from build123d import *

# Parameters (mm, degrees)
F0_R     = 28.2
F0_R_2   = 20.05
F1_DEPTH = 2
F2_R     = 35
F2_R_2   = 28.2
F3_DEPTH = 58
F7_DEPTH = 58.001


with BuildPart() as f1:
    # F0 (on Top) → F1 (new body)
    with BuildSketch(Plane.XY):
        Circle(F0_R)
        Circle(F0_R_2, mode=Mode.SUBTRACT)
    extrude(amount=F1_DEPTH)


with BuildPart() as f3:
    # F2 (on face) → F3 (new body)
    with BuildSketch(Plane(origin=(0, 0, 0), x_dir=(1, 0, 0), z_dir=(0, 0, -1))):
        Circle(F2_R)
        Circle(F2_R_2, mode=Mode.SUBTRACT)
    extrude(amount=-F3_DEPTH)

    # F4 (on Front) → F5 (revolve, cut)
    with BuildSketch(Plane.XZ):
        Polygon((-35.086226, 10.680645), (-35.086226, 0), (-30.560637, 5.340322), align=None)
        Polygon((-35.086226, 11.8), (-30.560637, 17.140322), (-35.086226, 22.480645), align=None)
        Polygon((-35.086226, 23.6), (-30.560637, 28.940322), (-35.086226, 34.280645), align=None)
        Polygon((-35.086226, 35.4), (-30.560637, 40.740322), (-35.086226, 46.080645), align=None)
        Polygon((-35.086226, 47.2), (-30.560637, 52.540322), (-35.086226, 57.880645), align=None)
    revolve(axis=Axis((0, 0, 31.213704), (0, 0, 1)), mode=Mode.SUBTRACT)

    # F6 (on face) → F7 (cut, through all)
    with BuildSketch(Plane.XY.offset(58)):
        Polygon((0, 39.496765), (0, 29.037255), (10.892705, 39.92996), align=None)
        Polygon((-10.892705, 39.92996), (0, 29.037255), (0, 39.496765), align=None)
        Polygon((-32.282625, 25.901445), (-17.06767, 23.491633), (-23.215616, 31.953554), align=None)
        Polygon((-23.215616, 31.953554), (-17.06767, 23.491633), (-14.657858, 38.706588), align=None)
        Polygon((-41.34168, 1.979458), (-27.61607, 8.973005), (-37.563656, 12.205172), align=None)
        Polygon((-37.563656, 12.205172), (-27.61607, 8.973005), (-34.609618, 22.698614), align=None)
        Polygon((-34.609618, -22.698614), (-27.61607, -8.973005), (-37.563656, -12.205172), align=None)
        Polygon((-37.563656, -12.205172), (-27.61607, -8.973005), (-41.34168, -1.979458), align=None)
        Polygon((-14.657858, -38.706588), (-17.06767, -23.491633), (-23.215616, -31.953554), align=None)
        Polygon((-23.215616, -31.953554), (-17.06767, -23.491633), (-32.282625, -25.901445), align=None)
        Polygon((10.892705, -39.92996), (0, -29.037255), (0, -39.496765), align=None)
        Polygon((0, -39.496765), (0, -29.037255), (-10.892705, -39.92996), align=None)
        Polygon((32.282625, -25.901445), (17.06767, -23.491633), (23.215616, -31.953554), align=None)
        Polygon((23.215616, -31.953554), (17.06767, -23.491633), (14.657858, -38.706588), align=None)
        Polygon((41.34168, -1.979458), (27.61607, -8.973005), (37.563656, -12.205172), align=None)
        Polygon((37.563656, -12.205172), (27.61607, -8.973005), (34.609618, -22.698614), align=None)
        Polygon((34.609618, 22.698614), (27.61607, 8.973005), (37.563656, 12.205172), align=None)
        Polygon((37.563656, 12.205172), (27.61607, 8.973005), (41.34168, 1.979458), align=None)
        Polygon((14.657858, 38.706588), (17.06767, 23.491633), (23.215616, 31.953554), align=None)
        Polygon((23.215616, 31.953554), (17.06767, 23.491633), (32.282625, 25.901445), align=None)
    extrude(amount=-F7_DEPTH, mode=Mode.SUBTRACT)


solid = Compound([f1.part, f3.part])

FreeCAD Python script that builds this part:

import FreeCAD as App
import Part
import Sketcher
Q = App.Units.Quantity

doc = App.newDocument("Part")
body = doc.addObject("PartDesign::Body", "Body")

# Sketch on XY plane
sketch1 = doc.addObject("Sketcher::SketchObject", "Sketch")
body.addObject(sketch1)
sketch1.AttachmentSupport = (doc.XY_Plane, [""])
sketch1.MapMode = "FlatFace"
sketch1.addGeometry([
    Part.Circle(App.Vector(0, 0, 0), App.Vector(0, 0, 1), 28.2),
    Part.Circle(App.Vector(0, 0, 0), App.Vector(0, 0, 1), 20.05),
], False)
sketch1.addConstraint([
    Sketcher.Constraint("Coincident", 0, 3, -1, 1),
    Sketcher.Constraint("Coincident", 1, 3, -1, 1),
    Sketcher.Constraint("Diameter", 0, 56.4),
    Sketcher.Constraint("Diameter", 1, 40.1),
])
pad1 = doc.addObject("PartDesign::Pad", "Pad")
body.addObject(pad1)
pad1.Profile = sketch1
pad1.Length = 2
body2 = doc.addObject("PartDesign::Body", "Body001")

# Sketch on XY plane
sketch2 = doc.addObject("Sketcher::SketchObject", "Sketch001")
body2.addObject(sketch2)
sketch2.AttachmentSupport = (doc.getObject("XY_Plane001"), [""])
sketch2.MapMode = "FlatFace"
sketch2.addGeometry([
    Part.Circle(App.Vector(0, 0, 0), App.Vector(0, 0, 1), 35),
    Part.Circle(App.Vector(0, 0, 0), App.Vector(0, 0, 1), 28.2),
], False)
sketch2.addConstraint([
    Sketcher.Constraint("Coincident", 0, 3, -1, 1),
    Sketcher.Constraint("Coincident", 1, 3, -1, 1),
    Sketcher.Constraint("Diameter", 0, 70.0),
    Sketcher.Constraint("Diameter", 1, 56.4),
])
pad2 = doc.addObject("PartDesign::Pad", "Pad001")
body2.addObject(pad2)
pad2.Profile = sketch2
pad2.Length = 58

# Sketch on XZ plane
sketch3 = doc.addObject("Sketcher::SketchObject", "Sketch002")
body2.addObject(sketch3)
sketch3.AttachmentSupport = (doc.getObject("XZ_Plane001"), [""])
sketch3.MapMode = "FlatFace"
sketch3.addGeometry([
    Part.LineSegment(App.Vector(-35.086226, 10.680645, 0), App.Vector(-35.086226, 0, 0)),  # 0
    Part.LineSegment(App.Vector(-35.086226, 0, 0), App.Vector(-30.560637, 5.340322, 0)),  # 1
    Part.LineSegment(App.Vector(-30.560637, 5.340322, 0), App.Vector(-35.086226, 10.680645, 0)),  # 2
    Part.LineSegment(App.Vector(-35.086226, 11.8, 0), App.Vector(-30.560637, 17.140322, 0)),  # 3
    Part.LineSegment(App.Vector(-30.560637, 17.140322, 0), App.Vector(-35.086226, 22.480645, 0)),  # 4
    Part.LineSegment(App.Vector(-35.086226, 22.480645, 0), App.Vector(-35.086226, 11.8, 0)),  # 5
    Part.LineSegment(App.Vector(-35.086226, 23.6, 0), App.Vector(-30.560637, 28.940322, 0)),  # 6
    Part.LineSegment(App.Vector(-30.560637, 28.940322, 0), App.Vector(-35.086226, 34.280645, 0)),  # 7
    Part.LineSegment(App.Vector(-35.086226, 34.280645, 0), App.Vector(-35.086226, 23.6, 0)),  # 8
    Part.LineSegment(App.Vector(-35.086226, 35.4, 0), App.Vector(-30.560637, 40.740322, 0)),  # 9
    Part.LineSegment(App.Vector(-30.560637, 40.740322, 0), App.Vector(-35.086226, 46.080645, 0)),  # 10
    Part.LineSegment(App.Vector(-35.086226, 46.080645, 0), App.Vector(-35.086226, 35.4, 0)),  # 11
    Part.LineSegment(App.Vector(-35.086226, 47.2, 0), App.Vector(-30.560637, 52.540322, 0)),  # 12
    Part.LineSegment(App.Vector(-30.560637, 52.540322, 0), App.Vector(-35.086226, 57.880645, 0)),  # 13
    Part.LineSegment(App.Vector(-35.086226, 57.880645, 0), App.Vector(-35.086226, 47.2, 0)),  # 14
], False)
sketch3.addConstraint([
    Sketcher.Constraint("Coincident", 0, 2, 1, 1),
    Sketcher.Constraint("Coincident", 1, 2, 2, 1),
    Sketcher.Constraint("Coincident", 2, 2, 0, 1),
    Sketcher.Constraint("Coincident", 3, 2, 4, 1),
    Sketcher.Constraint("Coincident", 4, 2, 5, 1),
    Sketcher.Constraint("Coincident", 5, 2, 3, 1),
    Sketcher.Constraint("Coincident", 6, 2, 7, 1),
    Sketcher.Constraint("Coincident", 7, 2, 8, 1),
    Sketcher.Constraint("Coincident", 8, 2, 6, 1),
    Sketcher.Constraint("Coincident", 9, 2, 10, 1),
    Sketcher.Constraint("Coincident", 10, 2, 11, 1),
    Sketcher.Constraint("Coincident", 11, 2, 9, 1),
    Sketcher.Constraint("Coincident", 12, 2, 13, 1),
    Sketcher.Constraint("Coincident", 13, 2, 14, 1),
    Sketcher.Constraint("Coincident", 14, 2, 12, 1),
    Sketcher.Constraint("Vertical", 0),
    Sketcher.Constraint("Vertical", 5),
    Sketcher.Constraint("Vertical", 8),
    Sketcher.Constraint("Vertical", 11),
    Sketcher.Constraint("Vertical", 14),
    Sketcher.Constraint("PointOnObject", 0, 2, -1),
    Sketcher.Constraint("Parallel", 1, 3),
    Sketcher.Constraint("Parallel", 2, 4),
    Sketcher.Constraint("Parallel", 3, 6),
    Sketcher.Constraint("Parallel", 4, 7),
    Sketcher.Constraint("Parallel", 6, 9),
    Sketcher.Constraint("Parallel", 7, 10),
    Sketcher.Constraint("Parallel", 9, 12),
    Sketcher.Constraint("Parallel", 10, 13),
    Sketcher.Constraint("Vertical", 1, 2, 3, 2),
    Sketcher.Constraint("Vertical", 2, 2, 4, 2),
    Sketcher.Constraint("Vertical", 3, 2, 6, 2),
    Sketcher.Constraint("Vertical", 5, 2, 7, 2),
    Sketcher.Constraint("Vertical", 6, 2, 9, 2),
    Sketcher.Constraint("Vertical", 8, 2, 10, 2),
    Sketcher.Constraint("Vertical", 9, 2, 12, 2),
    Sketcher.Constraint("Vertical", 11, 2, 13, 2),
    Sketcher.Constraint("Equal", 1, 2),
    Sketcher.Constraint("Distance", 1, 7.0),
    Sketcher.Constraint("DistanceY", -1, 1, 5, 2, 11.8),
    Sketcher.Constraint("DistanceY", -1, 1, 8, 2, 23.6),
    Sketcher.Constraint("DistanceY", -1, 1, 11, 2, 35.4),
    Sketcher.Constraint("DistanceY", -1, 1, 14, 2, 47.2),
    Sketcher.Constraint("DistanceY", 0, 2, 0, 1, 10.680645),
    Sketcher.Constraint("DistanceX", 0, 2, -1, 1, 35.086226),
])
groove = doc.addObject("PartDesign::Groove", "Groove")
body2.addObject(groove)
groove.Profile = sketch3
groove.ReferenceAxis = (sketch3, ["V_Axis"])
groove.Angle = 360

# Sketch on XY plane
sketch4 = doc.addObject("Sketcher::SketchObject", "Sketch003")
body2.addObject(sketch4)
sketch4.AttachmentSupport = (doc.getObject("XY_Plane001"), [""])
sketch4.MapMode = "FlatFace"
sketch4.AttachmentOffset = App.Placement(App.Vector(0, 0, 58), App.Rotation())
sketch4.addGeometry([
    Part.LineSegment(App.Vector(0, 29.037255, 0), App.Vector(10.892705, 39.92996, 0)),  # 0
    Part.LineSegment(App.Vector(10.892705, 39.92996, 0), App.Vector(0, 39.496765, 0)),  # 1
    Part.LineSegment(App.Vector(0, 39.496765, 0), App.Vector(-10.892705, 39.92996, 0)),  # 2
    Part.LineSegment(App.Vector(-10.892705, 39.92996, 0), App.Vector(0, 29.037255, 0)),  # 3
    Part.LineSegment(App.Vector(-32.282625, 25.901445, 0), App.Vector(-17.06767, 23.491633, 0)),  # 4
    Part.LineSegment(App.Vector(-17.06767, 23.491633, 0), App.Vector(-14.657858, 38.706588, 0)),  # 5
    Part.LineSegment(App.Vector(-14.657858, 38.706588, 0), App.Vector(-23.215616, 31.953554, 0)),  # 6
    Part.LineSegment(App.Vector(-23.215616, 31.953554, 0), App.Vector(-32.282625, 25.901445, 0)),  # 7
    Part.LineSegment(App.Vector(-41.34168, 1.979458, 0), App.Vector(-27.61607, 8.973005, 0)),  # 8
    Part.LineSegment(App.Vector(-27.61607, 8.973005, 0), App.Vector(-34.609618, 22.698614, 0)),  # 9
    Part.LineSegment(App.Vector(-34.609618, 22.698614, 0), App.Vector(-37.563656, 12.205172, 0)),  # 10
    Part.LineSegment(App.Vector(-37.563656, 12.205172, 0), App.Vector(-41.34168, 1.979458, 0)),  # 11
    Part.LineSegment(App.Vector(-34.609618, -22.698614, 0), App.Vector(-27.61607, -8.973005, 0)),  # 12
    Part.LineSegment(App.Vector(-27.61607, -8.973005, 0), App.Vector(-41.34168, -1.979458, 0)),  # 13
    Part.LineSegment(App.Vector(-41.34168, -1.979458, 0), App.Vector(-37.563656, -12.205172, 0)),  # 14
    Part.LineSegment(App.Vector(-37.563656, -12.205172, 0), App.Vector(-34.609618, -22.698614, 0)),  # 15
    Part.LineSegment(App.Vector(-14.657858, -38.706588, 0), App.Vector(-17.06767, -23.491633, 0)),  # 16
    Part.LineSegment(App.Vector(-17.06767, -23.491633, 0), App.Vector(-32.282625, -25.901445, 0)),  # 17
    Part.LineSegment(App.Vector(-32.282625, -25.901445, 0), App.Vector(-23.215616, -31.953554, 0)),  # 18
    Part.LineSegment(App.Vector(-23.215616, -31.953554, 0), App.Vector(-14.657858, -38.706588, 0)),  # 19
    Part.LineSegment(App.Vector(10.892705, -39.92996, 0), App.Vector(0, -29.037255, 0)),  # 20
    Part.LineSegment(App.Vector(0, -29.037255, 0), App.Vector(-10.892705, -39.92996, 0)),  # 21
    Part.LineSegment(App.Vector(-10.892705, -39.92996, 0), App.Vector(0, -39.496765, 0)),  # 22
    Part.LineSegment(App.Vector(0, -39.496765, 0), App.Vector(10.892705, -39.92996, 0)),  # 23
    Part.LineSegment(App.Vector(32.282625, -25.901445, 0), App.Vector(17.06767, -23.491633, 0)),  # 24
    Part.LineSegment(App.Vector(17.06767, -23.491633, 0), App.Vector(14.657858, -38.706588, 0)),  # 25
    Part.LineSegment(App.Vector(14.657858, -38.706588, 0), App.Vector(23.215616, -31.953554, 0)),  # 26
    Part.LineSegment(App.Vector(23.215616, -31.953554, 0), App.Vector(32.282625, -25.901445, 0)),  # 27
    Part.LineSegment(App.Vector(41.34168, -1.979458, 0), App.Vector(27.61607, -8.973005, 0)),  # 28
    Part.LineSegment(App.Vector(27.61607, -8.973005, 0), App.Vector(34.609618, -22.698614, 0)),  # 29
    Part.LineSegment(App.Vector(34.609618, -22.698614, 0), App.Vector(37.563656, -12.205172, 0)),  # 30
    Part.LineSegment(App.Vector(37.563656, -12.205172, 0), App.Vector(41.34168, -1.979458, 0)),  # 31
    Part.LineSegment(App.Vector(34.609618, 22.698614, 0), App.Vector(27.61607, 8.973005, 0)),  # 32
    Part.LineSegment(App.Vector(27.61607, 8.973005, 0), App.Vector(41.34168, 1.979458, 0)),  # 33
    Part.LineSegment(App.Vector(41.34168, 1.979458, 0), App.Vector(37.563656, 12.205172, 0)),  # 34
    Part.LineSegment(App.Vector(37.563656, 12.205172, 0), App.Vector(34.609618, 22.698614, 0)),  # 35
    Part.LineSegment(App.Vector(14.657858, 38.706588, 0), App.Vector(17.06767, 23.491633, 0)),  # 36
    Part.LineSegment(App.Vector(17.06767, 23.491633, 0), App.Vector(32.282625, 25.901445, 0)),  # 37
    Part.LineSegment(App.Vector(32.282625, 25.901445, 0), App.Vector(23.215616, 31.953554, 0)),  # 38
    Part.LineSegment(App.Vector(23.215616, 31.953554, 0), App.Vector(14.657858, 38.706588, 0)),  # 39
], False)
sketch4.addConstraint([
    Sketcher.Constraint("Coincident", 0, 2, 1, 1),
    Sketcher.Constraint("Coincident", 1, 2, 2, 1),
    Sketcher.Constraint("Coincident", 2, 2, 3, 1),
    Sketcher.Constraint("Coincident", 3, 2, 0, 1),
    Sketcher.Constraint("Coincident", 4, 2, 5, 1),
    Sketcher.Constraint("Coincident", 5, 2, 6, 1),
    Sketcher.Constraint("Coincident", 6, 2, 7, 1),
    Sketcher.Constraint("Coincident", 7, 2, 4, 1),
    Sketcher.Constraint("Coincident", 8, 2, 9, 1),
    Sketcher.Constraint("Coincident", 9, 2, 10, 1),
    Sketcher.Constraint("Coincident", 10, 2, 11, 1),
    Sketcher.Constraint("Coincident", 11, 2, 8, 1),
    Sketcher.Constraint("Coincident", 12, 2, 13, 1),
    Sketcher.Constraint("Coincident", 13, 2, 14, 1),
    Sketcher.Constraint("Coincident", 14, 2, 15, 1),
    Sketcher.Constraint("Coincident", 15, 2, 12, 1),
    Sketcher.Constraint("Coincident", 16, 2, 17, 1),
    Sketcher.Constraint("Coincident", 17, 2, 18, 1),
    Sketcher.Constraint("Coincident", 18, 2, 19, 1),
    Sketcher.Constraint("Coincident", 19, 2, 16, 1),
    Sketcher.Constraint("Coincident", 20, 2, 21, 1),
    Sketcher.Constraint("Coincident", 21, 2, 22, 1),
    Sketcher.Constraint("Coincident", 22, 2, 23, 1),
    Sketcher.Constraint("Coincident", 23, 2, 20, 1),
    Sketcher.Constraint("Coincident", 24, 2, 25, 1),
    Sketcher.Constraint("Coincident", 25, 2, 26, 1),
    Sketcher.Constraint("Coincident", 26, 2, 27, 1),
    Sketcher.Constraint("Coincident", 27, 2, 24, 1),
    Sketcher.Constraint("Coincident", 28, 2, 29, 1),
    Sketcher.Constraint("Coincident", 29, 2, 30, 1),
    Sketcher.Constraint("Coincident", 30, 2, 31, 1),
    Sketcher.Constraint("Coincident", 31, 2, 28, 1),
    Sketcher.Constraint("Coincident", 32, 2, 33, 1),
    Sketcher.Constraint("Coincident", 33, 2, 34, 1),
    Sketcher.Constraint("Coincident", 34, 2, 35, 1),
    Sketcher.Constraint("Coincident", 35, 2, 32, 1),
    Sketcher.Constraint("Coincident", 36, 2, 37, 1),
    Sketcher.Constraint("Coincident", 37, 2, 38, 1),
    Sketcher.Constraint("Coincident", 38, 2, 39, 1),
    Sketcher.Constraint("Coincident", 39, 2, 36, 1),
    Sketcher.Constraint("Symmetric", 3, 2, 20, 2, -1, 1),
    Sketcher.Constraint("Symmetric", 0, 2, 21, 2, -1, 1),
    Sketcher.Constraint("Symmetric", 1, 2, 22, 2, -1, 1),
    Sketcher.Constraint("Symmetric", 2, 2, 23, 2, -1, 1),
    Sketcher.Constraint("Symmetric", 4, 2, 24, 2, -1, 1),
    Sketcher.Constraint("Symmetric", 5, 2, 25, 2, -1, 1),
    Sketcher.Constraint("Symmetric", 6, 2, 26, 2, -1, 1),
    Sketcher.Constraint("Symmetric", 7, 2, 27, 2, -1, 1),
    Sketcher.Constraint("Symmetric", 8, 2, 28, 2, -1, 1),
    Sketcher.Constraint("Symmetric", 9, 2, 29, 2, -1, 1),
    Sketcher.Constraint("Symmetric", 10, 2, 30, 2, -1, 1),
    Sketcher.Constraint("Symmetric", 11, 2, 31, 2, -1, 1),
    Sketcher.Constraint("Symmetric", 12, 2, 32, 2, -1, 1),
    Sketcher.Constraint("Symmetric", 13, 2, 33, 2, -1, 1),
    Sketcher.Constraint("Symmetric", 14, 2, 34, 2, -1, 1),
    Sketcher.Constraint("Symmetric", 15, 2, 35, 2, -1, 1),
    Sketcher.Constraint("Symmetric", 16, 2, 36, 2, -1, 1),
    Sketcher.Constraint("Symmetric", 17, 2, 37, 2, -1, 1),
    Sketcher.Constraint("Symmetric", 18, 2, 38, 2, -1, 1),
    Sketcher.Constraint("Symmetric", 19, 2, 39, 2, -1, 1),
    Sketcher.Constraint("Symmetric", 0, 2, 2, 2, -2),
    Sketcher.Constraint("Symmetric", 16, 2, 24, 2, -2),
    Sketcher.Constraint("Symmetric", 19, 2, 25, 2, -2),
    Sketcher.Constraint("Symmetric", 18, 2, 26, 2, -2),
    Sketcher.Constraint("Symmetric", 17, 2, 27, 2, -2),
    Sketcher.Constraint("Symmetric", 12, 2, 28, 2, -2),
    Sketcher.Constraint("Symmetric", 15, 2, 29, 2, -2),
    Sketcher.Constraint("Symmetric", 14, 2, 30, 2, -2),
    Sketcher.Constraint("Symmetric", 13, 2, 31, 2, -2),
    Sketcher.Constraint("PointOnObject", 1, 2, -2),
    Sketcher.Constraint("PointOnObject", 3, 2, -2),
    Sketcher.Constraint("Perpendicular", 0, 3),
    Sketcher.Constraint("Perpendicular", 4, 5),
    Sketcher.Constraint("Perpendicular", 8, 9),
    Sketcher.Constraint("Equal", 3, 4),
    Sketcher.Constraint("Equal", 4, 5),
    Sketcher.Constraint("Equal", 2, 6),
    Sketcher.Constraint("Equal", 6, 7),
    Sketcher.Constraint("Equal", 5, 8),
    Sketcher.Constraint("Equal", 8, 9),
    Sketcher.Constraint("Equal", 7, 10),
    Sketcher.Constraint("Equal", 10, 11),
    Sketcher.Constraint("Angle", 4, Q("-9 deg")),
    Sketcher.Constraint("Angle", 8, Q("26.999998 deg")),
    Sketcher.Constraint("DistanceX", 9, 2, 6, 2, 11.394002),
    Sketcher.Constraint("DistanceY", 3, 2, 6, 2, 2.916299),
    Sketcher.Constraint("DistanceX", 8, 2, 4, 2, 10.5484),
    Sketcher.Constraint("Distance", 0, 15.404611),
    Sketcher.Constraint("DistanceY", -1, 1, 0, 2, 39.92996),
    Sketcher.Constraint("DistanceX", 4, 2, -1, 1, 17.06767),
    Sketcher.Constraint("DistanceY", -1, 1, 10, 2, 12.205172),
])
pocket1 = doc.addObject("PartDesign::Pocket", "Pocket")
body2.addObject(pocket1)
pocket1.Profile = sketch4
pocket1.Type = "ThroughAll"

doc.recompute()
